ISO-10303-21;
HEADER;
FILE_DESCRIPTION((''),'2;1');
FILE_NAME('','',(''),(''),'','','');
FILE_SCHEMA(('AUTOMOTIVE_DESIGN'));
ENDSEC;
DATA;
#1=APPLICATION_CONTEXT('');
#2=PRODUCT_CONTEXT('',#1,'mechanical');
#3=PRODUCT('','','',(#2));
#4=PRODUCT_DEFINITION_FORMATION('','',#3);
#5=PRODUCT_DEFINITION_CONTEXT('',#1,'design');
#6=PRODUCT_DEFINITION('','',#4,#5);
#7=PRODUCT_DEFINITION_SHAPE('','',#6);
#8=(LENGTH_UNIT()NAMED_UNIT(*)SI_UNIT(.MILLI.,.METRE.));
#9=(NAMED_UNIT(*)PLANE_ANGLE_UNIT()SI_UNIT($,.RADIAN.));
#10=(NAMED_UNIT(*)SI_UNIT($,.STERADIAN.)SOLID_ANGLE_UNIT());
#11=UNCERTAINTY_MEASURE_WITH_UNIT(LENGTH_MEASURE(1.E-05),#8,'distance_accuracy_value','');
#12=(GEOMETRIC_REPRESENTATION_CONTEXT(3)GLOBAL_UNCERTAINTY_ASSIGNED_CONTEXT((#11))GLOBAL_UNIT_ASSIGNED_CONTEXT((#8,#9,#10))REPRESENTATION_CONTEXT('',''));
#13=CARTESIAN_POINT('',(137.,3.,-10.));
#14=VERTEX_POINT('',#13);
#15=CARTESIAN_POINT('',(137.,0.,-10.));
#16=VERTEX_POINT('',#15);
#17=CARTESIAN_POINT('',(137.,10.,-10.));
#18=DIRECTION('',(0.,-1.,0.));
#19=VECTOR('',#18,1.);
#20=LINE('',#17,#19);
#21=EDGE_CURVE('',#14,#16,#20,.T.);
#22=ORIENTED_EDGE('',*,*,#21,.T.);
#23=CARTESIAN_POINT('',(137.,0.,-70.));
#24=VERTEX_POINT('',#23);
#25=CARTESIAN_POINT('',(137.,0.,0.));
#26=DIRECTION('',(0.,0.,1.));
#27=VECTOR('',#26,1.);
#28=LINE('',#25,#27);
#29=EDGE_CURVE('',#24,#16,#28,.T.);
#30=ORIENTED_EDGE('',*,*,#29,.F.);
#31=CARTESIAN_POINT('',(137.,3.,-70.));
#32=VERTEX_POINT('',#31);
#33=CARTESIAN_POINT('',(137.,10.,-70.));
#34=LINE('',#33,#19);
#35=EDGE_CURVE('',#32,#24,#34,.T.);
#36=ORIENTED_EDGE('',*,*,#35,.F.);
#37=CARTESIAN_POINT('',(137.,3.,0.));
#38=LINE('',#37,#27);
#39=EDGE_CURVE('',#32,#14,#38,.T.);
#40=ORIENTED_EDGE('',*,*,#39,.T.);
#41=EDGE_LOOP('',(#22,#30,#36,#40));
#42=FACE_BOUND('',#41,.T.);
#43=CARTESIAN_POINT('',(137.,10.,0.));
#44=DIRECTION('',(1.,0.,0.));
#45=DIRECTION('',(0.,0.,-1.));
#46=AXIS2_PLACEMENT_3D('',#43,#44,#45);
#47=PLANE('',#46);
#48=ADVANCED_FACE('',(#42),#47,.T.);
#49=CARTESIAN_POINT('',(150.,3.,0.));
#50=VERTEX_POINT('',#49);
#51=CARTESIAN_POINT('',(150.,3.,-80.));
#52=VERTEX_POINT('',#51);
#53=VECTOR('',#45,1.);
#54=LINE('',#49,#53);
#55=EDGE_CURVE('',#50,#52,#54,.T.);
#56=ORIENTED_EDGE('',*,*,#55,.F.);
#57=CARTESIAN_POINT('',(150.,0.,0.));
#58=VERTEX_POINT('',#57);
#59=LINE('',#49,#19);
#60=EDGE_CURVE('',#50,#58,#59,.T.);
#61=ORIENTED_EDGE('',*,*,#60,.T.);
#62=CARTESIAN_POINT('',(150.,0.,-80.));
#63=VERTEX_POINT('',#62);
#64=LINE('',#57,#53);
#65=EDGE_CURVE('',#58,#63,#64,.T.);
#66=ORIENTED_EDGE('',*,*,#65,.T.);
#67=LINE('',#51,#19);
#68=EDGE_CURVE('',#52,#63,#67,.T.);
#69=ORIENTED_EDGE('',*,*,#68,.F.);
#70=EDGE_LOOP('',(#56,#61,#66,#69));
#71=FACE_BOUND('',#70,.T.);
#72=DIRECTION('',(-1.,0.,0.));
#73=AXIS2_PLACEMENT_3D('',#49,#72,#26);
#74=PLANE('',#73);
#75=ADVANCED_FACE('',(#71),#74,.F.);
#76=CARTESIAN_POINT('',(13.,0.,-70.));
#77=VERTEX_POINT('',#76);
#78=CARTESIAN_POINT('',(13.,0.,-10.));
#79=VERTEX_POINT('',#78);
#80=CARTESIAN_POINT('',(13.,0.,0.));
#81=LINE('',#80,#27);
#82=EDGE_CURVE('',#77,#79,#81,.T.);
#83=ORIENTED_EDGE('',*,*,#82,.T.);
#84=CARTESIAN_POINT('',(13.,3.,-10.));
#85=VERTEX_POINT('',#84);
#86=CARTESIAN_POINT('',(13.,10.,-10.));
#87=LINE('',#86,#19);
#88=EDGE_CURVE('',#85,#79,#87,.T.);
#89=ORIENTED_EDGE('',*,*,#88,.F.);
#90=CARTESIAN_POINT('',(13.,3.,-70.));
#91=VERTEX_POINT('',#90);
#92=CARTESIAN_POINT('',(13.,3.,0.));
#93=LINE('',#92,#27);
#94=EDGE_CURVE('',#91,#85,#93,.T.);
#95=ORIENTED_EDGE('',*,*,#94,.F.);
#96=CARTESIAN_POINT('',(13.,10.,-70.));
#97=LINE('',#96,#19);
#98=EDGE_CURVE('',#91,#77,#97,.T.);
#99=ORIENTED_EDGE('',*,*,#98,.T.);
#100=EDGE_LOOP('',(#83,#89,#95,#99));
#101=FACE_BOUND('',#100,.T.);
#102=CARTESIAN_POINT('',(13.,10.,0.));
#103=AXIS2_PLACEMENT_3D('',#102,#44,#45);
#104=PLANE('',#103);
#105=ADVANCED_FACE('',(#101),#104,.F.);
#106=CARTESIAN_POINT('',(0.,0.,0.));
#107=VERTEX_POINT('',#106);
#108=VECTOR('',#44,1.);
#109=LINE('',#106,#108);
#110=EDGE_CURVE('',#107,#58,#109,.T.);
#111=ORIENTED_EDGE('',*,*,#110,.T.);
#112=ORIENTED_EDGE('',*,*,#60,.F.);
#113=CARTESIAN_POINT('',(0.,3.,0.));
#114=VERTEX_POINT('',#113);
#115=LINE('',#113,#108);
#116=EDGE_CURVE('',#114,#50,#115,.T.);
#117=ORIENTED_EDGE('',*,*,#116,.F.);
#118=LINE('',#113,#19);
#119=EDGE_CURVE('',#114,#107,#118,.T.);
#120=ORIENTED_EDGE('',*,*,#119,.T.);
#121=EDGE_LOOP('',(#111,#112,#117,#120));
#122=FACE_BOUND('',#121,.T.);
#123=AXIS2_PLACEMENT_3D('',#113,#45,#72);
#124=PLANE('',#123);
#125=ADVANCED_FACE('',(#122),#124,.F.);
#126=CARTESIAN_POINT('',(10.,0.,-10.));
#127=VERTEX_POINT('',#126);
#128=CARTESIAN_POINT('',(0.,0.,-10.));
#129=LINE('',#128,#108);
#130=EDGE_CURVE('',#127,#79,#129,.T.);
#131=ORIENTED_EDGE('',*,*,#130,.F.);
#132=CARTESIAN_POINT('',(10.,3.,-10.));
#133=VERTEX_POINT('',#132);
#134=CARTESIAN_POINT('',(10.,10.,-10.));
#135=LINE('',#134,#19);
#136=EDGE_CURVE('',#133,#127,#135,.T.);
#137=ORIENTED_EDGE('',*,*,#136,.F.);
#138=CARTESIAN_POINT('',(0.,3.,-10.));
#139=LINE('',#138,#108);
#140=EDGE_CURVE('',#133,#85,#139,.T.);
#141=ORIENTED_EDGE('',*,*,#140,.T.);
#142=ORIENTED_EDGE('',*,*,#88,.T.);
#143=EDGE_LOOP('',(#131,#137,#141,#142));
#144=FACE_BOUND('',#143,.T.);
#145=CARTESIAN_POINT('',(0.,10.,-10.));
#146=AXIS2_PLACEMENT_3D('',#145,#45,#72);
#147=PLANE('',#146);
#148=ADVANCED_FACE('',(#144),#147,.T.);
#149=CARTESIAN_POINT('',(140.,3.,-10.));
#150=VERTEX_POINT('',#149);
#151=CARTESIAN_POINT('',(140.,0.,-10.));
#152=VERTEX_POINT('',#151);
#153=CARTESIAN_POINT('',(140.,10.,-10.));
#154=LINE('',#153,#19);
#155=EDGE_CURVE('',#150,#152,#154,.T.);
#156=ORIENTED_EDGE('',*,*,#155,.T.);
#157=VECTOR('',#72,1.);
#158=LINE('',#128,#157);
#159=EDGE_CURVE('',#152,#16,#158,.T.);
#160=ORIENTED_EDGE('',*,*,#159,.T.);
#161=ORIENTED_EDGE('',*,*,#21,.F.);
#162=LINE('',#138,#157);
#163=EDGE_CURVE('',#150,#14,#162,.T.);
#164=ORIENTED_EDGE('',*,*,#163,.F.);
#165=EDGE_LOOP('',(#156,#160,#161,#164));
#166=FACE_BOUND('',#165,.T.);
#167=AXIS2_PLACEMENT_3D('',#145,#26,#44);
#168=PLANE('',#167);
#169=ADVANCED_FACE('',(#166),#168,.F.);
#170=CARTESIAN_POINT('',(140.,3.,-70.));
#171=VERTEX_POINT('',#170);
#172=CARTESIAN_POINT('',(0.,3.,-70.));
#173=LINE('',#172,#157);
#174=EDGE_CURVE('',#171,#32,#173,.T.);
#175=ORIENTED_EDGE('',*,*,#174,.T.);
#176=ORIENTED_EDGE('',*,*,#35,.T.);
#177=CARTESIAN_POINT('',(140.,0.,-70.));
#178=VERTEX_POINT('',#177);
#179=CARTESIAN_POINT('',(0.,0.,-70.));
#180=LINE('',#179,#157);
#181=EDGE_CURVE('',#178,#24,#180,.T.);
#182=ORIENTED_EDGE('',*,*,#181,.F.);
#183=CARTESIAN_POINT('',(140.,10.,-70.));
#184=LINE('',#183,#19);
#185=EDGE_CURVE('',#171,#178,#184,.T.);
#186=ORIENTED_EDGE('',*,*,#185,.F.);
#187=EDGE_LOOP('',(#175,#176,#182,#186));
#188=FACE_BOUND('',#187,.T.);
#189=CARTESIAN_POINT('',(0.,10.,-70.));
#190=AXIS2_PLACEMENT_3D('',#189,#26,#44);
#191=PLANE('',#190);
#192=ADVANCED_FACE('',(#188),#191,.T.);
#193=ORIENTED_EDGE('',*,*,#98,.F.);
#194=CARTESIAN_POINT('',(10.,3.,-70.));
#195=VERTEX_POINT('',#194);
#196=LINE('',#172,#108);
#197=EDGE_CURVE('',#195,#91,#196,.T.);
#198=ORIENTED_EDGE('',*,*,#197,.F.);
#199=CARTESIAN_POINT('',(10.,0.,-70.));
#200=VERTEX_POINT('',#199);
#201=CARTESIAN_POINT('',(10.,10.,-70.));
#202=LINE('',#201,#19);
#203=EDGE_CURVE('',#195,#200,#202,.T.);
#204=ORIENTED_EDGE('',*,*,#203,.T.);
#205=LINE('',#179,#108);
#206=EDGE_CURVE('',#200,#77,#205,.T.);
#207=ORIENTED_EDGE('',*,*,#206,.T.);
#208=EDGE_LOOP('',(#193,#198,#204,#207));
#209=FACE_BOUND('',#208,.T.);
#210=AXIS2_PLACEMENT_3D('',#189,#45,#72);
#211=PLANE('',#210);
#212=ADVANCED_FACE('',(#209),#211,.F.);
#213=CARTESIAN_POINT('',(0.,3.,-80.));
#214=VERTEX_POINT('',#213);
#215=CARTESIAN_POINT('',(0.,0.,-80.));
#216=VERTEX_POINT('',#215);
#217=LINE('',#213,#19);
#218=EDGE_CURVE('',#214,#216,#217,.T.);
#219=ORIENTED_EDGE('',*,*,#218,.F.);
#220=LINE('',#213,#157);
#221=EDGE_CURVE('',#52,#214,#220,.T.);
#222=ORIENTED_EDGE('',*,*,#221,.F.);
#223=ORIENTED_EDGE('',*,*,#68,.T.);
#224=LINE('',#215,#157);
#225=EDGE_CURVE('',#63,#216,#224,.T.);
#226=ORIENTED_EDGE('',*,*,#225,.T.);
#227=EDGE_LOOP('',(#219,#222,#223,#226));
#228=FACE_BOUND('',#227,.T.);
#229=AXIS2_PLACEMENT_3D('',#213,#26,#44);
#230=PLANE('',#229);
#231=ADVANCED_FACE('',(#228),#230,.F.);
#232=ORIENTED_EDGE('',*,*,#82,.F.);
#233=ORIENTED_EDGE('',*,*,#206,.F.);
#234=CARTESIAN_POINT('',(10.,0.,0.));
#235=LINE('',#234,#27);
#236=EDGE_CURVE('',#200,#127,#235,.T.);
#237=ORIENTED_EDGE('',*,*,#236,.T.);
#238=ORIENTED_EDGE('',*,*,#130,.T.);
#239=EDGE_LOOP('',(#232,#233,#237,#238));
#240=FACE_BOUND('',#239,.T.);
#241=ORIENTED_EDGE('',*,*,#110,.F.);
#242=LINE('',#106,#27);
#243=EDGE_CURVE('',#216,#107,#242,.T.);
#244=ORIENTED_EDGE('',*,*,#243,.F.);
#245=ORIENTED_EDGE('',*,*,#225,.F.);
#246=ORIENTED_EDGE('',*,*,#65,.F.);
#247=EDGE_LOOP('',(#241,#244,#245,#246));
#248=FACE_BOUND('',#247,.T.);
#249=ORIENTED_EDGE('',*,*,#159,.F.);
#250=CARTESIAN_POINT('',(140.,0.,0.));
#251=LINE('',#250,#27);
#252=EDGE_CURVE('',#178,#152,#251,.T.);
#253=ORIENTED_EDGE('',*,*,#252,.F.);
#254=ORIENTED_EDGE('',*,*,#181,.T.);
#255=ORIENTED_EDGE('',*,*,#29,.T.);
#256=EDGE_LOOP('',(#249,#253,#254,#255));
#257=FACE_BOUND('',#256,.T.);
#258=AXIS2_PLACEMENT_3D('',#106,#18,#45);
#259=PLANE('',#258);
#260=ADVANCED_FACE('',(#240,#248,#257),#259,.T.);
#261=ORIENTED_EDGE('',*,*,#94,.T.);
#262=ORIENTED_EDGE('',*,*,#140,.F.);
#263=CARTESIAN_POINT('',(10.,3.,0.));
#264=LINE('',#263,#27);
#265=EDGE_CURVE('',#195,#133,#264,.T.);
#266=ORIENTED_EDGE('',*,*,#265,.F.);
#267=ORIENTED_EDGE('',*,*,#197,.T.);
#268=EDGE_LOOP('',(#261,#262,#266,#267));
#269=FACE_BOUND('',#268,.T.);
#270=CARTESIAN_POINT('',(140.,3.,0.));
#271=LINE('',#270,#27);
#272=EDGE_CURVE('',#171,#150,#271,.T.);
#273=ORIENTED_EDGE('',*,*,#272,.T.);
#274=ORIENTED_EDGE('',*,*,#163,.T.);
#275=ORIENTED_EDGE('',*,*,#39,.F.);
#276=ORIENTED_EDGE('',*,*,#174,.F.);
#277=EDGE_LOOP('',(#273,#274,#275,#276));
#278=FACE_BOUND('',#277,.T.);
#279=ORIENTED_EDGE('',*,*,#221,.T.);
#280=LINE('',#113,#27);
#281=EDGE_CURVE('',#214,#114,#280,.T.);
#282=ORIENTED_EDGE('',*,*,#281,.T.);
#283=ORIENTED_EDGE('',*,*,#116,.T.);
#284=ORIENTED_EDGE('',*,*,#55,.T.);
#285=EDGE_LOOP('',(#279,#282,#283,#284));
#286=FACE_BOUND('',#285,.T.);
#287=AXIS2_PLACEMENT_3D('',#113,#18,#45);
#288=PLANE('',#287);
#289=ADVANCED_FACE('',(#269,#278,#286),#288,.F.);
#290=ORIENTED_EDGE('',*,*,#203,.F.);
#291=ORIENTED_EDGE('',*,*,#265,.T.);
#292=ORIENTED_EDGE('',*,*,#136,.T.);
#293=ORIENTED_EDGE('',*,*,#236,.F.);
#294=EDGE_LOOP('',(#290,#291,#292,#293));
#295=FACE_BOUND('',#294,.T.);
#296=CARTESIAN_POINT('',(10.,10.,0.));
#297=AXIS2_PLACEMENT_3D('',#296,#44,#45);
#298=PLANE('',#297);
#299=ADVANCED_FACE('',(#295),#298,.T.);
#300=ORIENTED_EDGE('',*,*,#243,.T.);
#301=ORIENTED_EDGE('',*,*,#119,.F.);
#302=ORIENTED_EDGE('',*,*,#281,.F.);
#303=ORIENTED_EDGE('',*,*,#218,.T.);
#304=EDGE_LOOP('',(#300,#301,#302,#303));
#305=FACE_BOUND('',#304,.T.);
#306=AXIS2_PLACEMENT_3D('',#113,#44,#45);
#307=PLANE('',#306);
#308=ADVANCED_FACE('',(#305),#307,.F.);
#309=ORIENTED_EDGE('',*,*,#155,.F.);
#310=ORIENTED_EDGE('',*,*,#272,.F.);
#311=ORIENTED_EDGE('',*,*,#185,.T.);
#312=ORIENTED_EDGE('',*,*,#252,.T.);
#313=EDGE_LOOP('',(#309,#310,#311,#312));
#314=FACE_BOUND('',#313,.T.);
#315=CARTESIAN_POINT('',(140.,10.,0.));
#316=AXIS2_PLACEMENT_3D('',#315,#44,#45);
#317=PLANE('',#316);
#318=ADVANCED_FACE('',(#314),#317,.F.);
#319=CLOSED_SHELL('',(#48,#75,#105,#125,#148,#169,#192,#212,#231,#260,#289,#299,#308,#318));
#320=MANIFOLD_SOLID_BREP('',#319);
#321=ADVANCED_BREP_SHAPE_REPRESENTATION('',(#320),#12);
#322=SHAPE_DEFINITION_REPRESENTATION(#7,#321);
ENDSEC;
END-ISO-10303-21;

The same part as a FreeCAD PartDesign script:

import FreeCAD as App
import Part
import Sketcher
from FreeCAD import Vector
Q = App.Units.Quantity


def add_polygon(sketch, points):
    """Adds a closed chain of lines whose ends are joined by coincident constraints."""
    first, n = sketch.GeometryCount, len(points)
    for a, b in zip(points, points[1:] + points[:1]):
        sketch.addGeometry(Part.LineSegment(App.Vector(*a, 0), App.Vector(*b, 0)), False)
    for i in range(n):
        sketch.addConstraint(Sketcher.Constraint("Coincident", first + i, 2, first + (i + 1) % n, 1))

doc = App.newDocument("Part")
body = doc.addObject("PartDesign::Body", "Body")

sketch1 = doc.addObject("Sketcher::SketchObject", "Sketch")
body.addObject(sketch1)
sketch1.AttachmentSupport = (doc.XZ_Plane, [""])
sketch1.MapMode = "FlatFace"
add_polygon(sketch1, [(0, -80), (0, 0), (150, 0), (150, -80)])
sketch1.addConstraint(Sketcher.Constraint("Vertical", 0))
sketch1.addConstraint(Sketcher.Constraint("Horizontal", 1))
sketch1.addConstraint(Sketcher.Constraint("Vertical", 2))
sketch1.addConstraint(Sketcher.Constraint("Horizontal", 3))
sketch1.addConstraint(Sketcher.Constraint("Coincident", 0, 2, -1, 1))
sketch1.addConstraint(Sketcher.Constraint("DistanceX", 1, 1, 1, 2, Q("150 mm")))
sketch1.addConstraint(Sketcher.Constraint("DistanceY", 0, 1, 0, 2, Q("80 mm")))
pad1 = doc.addObject("PartDesign::Pad", "Pad")
body.addObject(pad1)
pad1.Profile = sketch1
pad1.Length = 3
pad1.Reversed = True

sketch2 = doc.addObject("Sketcher::SketchObject", "Sketch001")
body.addObject(sketch2)
sketch2.AttachmentSupport = (doc.XZ_Plane, [""])
sketch2.MapMode = "FlatFace"
add_polygon(sketch2, [(10, -70), (10, -10), (13, -10), (13, -70)])
add_polygon(sketch2, [(137, -70), (137, -10), (140, -10), (140, -70)])
sketch2.addConstraint(Sketcher.Constraint("Vertical", 0))
sketch2.addConstraint(Sketcher.Constraint("Horizontal", 1))
sketch2.addConstraint(Sketcher.Constraint("Vertical", 2))
sketch2.addConstraint(Sketcher.Constraint("Horizontal", 3))
sketch2.addConstraint(Sketcher.Constraint("Vertical", 4))
sketch2.addConstraint(Sketcher.Constraint("Horizontal", 5))
sketch2.addConstraint(Sketcher.Constraint("Vertical", 6))
sketch2.addConstraint(Sketcher.Constraint("Horizontal", 7))
sketch2.addConstraint(Sketcher.Constraint("Horizontal", 1, 2, 4, 2))
sketch2.addConstraint(Sketcher.Constraint("Horizontal", 3, 2, 6, 2))
sketch2.addConstraint(Sketcher.Constraint("Equal", 3, 5))
sketch2.addConstraint(Sketcher.Constraint("DistanceX", 1, 1, 1, 2, Q("3 mm")))
sketch2.addConstraint(Sketcher.Constraint("DistanceY", 0, 1, 0, 2, Q("60 mm")))
sketch2.addConstraint(Sketcher.Constraint("DistanceX", -1, 1, 0, 2, Q("10 mm")))
sketch2.addConstraint(Sketcher.Constraint("DistanceY", 0, 2, -1, 1, Q("10 mm")))
sketch2.addConstraint(Sketcher.Constraint("DistanceX", -1, 1, 4, 2, Q("137 mm")))
pocket1 = doc.addObject("PartDesign::Pocket", "Pocket")
body.addObject(pocket1)
pocket1.Profile = sketch2
pocket1.Length = 10

doc.recompute()
